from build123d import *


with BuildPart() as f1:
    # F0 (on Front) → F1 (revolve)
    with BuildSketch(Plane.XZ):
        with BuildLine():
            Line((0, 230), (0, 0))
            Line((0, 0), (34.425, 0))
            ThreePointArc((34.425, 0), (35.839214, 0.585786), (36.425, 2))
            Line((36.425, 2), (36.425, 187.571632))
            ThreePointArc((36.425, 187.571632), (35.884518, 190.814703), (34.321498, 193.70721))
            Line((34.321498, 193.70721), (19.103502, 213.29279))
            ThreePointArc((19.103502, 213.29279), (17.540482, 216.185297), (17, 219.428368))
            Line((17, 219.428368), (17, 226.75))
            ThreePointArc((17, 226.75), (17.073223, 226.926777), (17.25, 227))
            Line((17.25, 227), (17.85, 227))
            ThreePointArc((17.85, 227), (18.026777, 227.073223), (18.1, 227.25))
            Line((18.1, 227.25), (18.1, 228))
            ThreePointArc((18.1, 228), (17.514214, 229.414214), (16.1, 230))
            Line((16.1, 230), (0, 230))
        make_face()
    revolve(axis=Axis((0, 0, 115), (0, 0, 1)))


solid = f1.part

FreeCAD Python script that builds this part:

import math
import FreeCAD as App
import Part
import Sketcher

V = App.Vector
Q = App.Units.Quantity

doc = App.newDocument("Part")
body = doc.addObject("PartDesign::Body", "Body")

# Sketch on XZ plane
sketch1 = body.newObject("Sketcher::SketchObject", "Sketch")
sketch1.AttachmentSupport = (doc.getObject("XZ_Plane"), [""])
sketch1.MapMode = "FlatFace"
sketch1.addGeometry([
    Part.LineSegment(V(0, 230, 0), V(0, 0, 0)),  # 0
    Part.LineSegment(V(0, 0, 0), V(34.42, 0, 0)),  # 1
    Part.ArcOfCircle(Part.Circle(V(34.43, 2, 0), V(0, 0, 1), 2), math.radians(-90), math.radians(0)),  # 2
    Part.LineSegment(V(36.42, 2, 0), V(36.42, 187.57, 0)),  # 3
    Part.ArcOfCircle(Part.Circle(V(26.42, 187.57, 0), V(0, 0, 1), 10), math.radians(0), math.radians(38)),  # 4
    Part.LineSegment(V(34.32, 193.71, 0), V(19.1, 213.29, 0)),  # 5
    Part.ArcOfCircle(Part.Circle(V(27, 219.43, 0), V(0, 0, 1), 10), math.radians(-180), math.radians(-142)),  # 6
    Part.LineSegment(V(17, 219.43, 0), V(17, 226.75, 0)),  # 7
    Part.ArcOfCircle(Part.Circle(V(17.25, 226.75, 0), V(0, 0, 1), 0.25), math.radians(90), math.radians(180)),  # 8
    Part.LineSegment(V(17.25, 227, 0), V(17.85, 227, 0)),  # 9
    Part.ArcOfCircle(Part.Circle(V(17.85, 227.25, 0), V(0, 0, 1), 0.25), math.radians(-90), math.radians(0)),  # 10
    Part.LineSegment(V(18.1, 227.25, 0), V(18.1, 228, 0)),  # 11
    Part.ArcOfCircle(Part.Circle(V(16.1, 228, 0), V(0, 0, 1), 2), math.radians(0), math.radians(90)),  # 12
    Part.LineSegment(V(16.1, 230, 0), V(0, 230, 0)),  # 13
], False)
sketch1.addConstraint([
    Sketcher.Constraint("Coincident", 0, 2, 1, 1),
    Sketcher.Constraint("Tangent", 1, 2, 2, 1),
    Sketcher.Constraint("Tangent", 2, 2, 3, 1),
    Sketcher.Constraint("Tangent", 3, 2, 4, 1),
    Sketcher.Constraint("Tangent", 4, 2, 5, 1),
    Sketcher.Constraint("Tangent", 5, 2, 6, 2),
    Sketcher.Constraint("Tangent", 6, 1, 7, 1),
    Sketcher.Constraint("Coincident", 7, 2, 8, 2),
    Sketcher.Constraint("Coincident", 8, 1, 9, 1),
    Sketcher.Constraint("Coincident", 9, 2, 10, 1),
    Sketcher.Constraint("Coincident", 10, 2, 11, 1),
    Sketcher.Constraint("Tangent", 11, 2, 12, 1),
    Sketcher.Constraint("Tangent", 12, 2, 13, 1),
    Sketcher.Constraint("Coincident", 13, 2, 0, 1),
    Sketcher.Constraint("Vertical", 0),
    Sketcher.Constraint("Horizontal", 1),
    Sketcher.Constraint("Vertical", 3),
    Sketcher.Constraint("Vertical", 7),
    Sketcher.Constraint("Horizontal", 9),
    Sketcher.Constraint("Vertical", 11),
    Sketcher.Constraint("Horizontal", 13),
    Sketcher.Constraint("Coincident", 0, 2, -1, 1),
    Sketcher.Constraint("Equal", 4, 6),
    Sketcher.Constraint("Equal", 8, 10),
    Sketcher.Constraint("Equal", 2, 12),
    Sketcher.Constraint("Horizontal", 8, 3, 7, 2),
    Sketcher.Constraint("Vertical", 10, 3, 9, 2),
    Sketcher.Constraint("Radius", 2, Q("1.999999 mm")),
    Sketcher.Constraint("DistanceY", 0, 2, 0, 1, Q("230 mm")),
    Sketcher.Constraint("Radius", 8, Q("0.249999 mm")),
    Sketcher.Constraint("DistanceX", 9, 1, 9, 2, Q("0.6 mm")),
    Sketcher.Constraint("DistanceX", 13, 2, 13, 1, Q("16.1 mm")),
    Sketcher.Constraint("DistanceX", -1, 1, 6, 1, Q("17 mm")),
    Sketcher.Constraint("DistanceY", -1, 1, 8, 1, Q("227 mm")),
    Sketcher.Constraint("DistanceY", 11, 1, 11, 2, Q("0.75 mm")),
    Sketcher.Constraint("DistanceX", 1, 1, 1, 2, Q("34.425 mm")),
    Sketcher.Constraint("Radius", 4, Q("10.000008 mm")),
    Sketcher.Constraint("DistanceY", 3, 1, 3, 2, Q("185.571632 mm")),
    Sketcher.Constraint("DistanceY", 7, 1, 7, 2, Q("7.321632 mm")),
])
revolution = body.newObject("PartDesign::Revolution", "Revolution")
revolution.Profile = sketch1
revolution.ReferenceAxis = (sketch1, ["V_Axis"])
revolution.Angle = 360

doc.recompute()
